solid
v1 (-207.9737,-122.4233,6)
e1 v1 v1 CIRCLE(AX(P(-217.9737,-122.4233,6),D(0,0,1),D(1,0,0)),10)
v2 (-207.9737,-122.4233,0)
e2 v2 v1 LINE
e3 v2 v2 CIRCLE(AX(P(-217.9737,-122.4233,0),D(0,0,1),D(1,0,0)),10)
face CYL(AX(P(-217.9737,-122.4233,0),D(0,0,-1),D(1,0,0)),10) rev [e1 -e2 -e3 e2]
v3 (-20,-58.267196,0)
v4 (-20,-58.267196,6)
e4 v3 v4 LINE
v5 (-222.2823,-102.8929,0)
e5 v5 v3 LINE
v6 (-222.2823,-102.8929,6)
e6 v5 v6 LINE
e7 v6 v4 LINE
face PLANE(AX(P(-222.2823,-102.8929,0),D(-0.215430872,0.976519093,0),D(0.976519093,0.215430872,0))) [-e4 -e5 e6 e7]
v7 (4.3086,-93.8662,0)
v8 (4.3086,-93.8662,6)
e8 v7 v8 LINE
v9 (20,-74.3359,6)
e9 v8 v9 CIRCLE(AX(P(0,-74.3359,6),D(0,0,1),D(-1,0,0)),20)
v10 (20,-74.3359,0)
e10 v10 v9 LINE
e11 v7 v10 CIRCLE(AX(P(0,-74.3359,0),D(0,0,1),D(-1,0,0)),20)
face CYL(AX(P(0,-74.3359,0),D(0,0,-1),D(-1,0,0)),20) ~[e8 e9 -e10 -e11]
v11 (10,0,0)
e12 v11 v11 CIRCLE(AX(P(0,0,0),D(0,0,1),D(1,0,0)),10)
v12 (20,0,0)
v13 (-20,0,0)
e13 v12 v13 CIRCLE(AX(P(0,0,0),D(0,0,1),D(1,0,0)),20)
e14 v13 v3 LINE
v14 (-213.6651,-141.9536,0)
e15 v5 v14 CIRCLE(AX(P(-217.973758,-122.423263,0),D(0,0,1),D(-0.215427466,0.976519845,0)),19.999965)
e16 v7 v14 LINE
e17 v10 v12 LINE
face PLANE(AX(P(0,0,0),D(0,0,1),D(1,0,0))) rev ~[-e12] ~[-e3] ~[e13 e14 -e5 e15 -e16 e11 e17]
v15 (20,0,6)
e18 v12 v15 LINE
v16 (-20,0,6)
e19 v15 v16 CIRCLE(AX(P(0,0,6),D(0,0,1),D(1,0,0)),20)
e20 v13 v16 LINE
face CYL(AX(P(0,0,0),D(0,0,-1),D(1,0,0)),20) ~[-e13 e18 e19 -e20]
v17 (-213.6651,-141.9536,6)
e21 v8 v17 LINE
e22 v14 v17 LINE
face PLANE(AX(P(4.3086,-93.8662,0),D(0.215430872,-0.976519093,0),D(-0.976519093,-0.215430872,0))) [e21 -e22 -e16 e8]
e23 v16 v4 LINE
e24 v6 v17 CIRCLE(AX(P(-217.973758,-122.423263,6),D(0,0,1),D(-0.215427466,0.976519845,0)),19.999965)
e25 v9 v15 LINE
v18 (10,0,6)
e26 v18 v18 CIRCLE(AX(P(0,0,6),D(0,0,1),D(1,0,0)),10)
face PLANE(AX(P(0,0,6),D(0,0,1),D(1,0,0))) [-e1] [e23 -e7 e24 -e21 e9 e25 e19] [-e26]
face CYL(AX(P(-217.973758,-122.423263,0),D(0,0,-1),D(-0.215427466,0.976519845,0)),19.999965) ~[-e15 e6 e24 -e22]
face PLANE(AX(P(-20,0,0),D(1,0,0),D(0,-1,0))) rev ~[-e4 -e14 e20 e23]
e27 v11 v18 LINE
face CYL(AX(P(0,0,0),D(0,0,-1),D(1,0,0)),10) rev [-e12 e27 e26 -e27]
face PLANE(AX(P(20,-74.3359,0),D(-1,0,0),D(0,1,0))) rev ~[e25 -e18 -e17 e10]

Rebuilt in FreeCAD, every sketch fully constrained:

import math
import FreeCAD as App
import Part
import Sketcher

V = App.Vector
Q = App.Units.Quantity

doc = App.newDocument("Part")
body = doc.addObject("PartDesign::Body", "Body")

sketch1 = body.newObject("Sketcher::SketchObject", "Sketch")
sketch1.AttachmentSupport = (doc.getObject("XY_Plane"), [""])
sketch1.MapMode = "FlatFace"
sketch1.addGeometry(Part.ArcOfCircle(Part.Circle(V(0, 0, 0), V(0, 0, 1), 20), math.radians(0), math.radians(180)), False)
sketch1.addGeometry(Part.LineSegment(V(-20, 0, 0), V(-20, -58, 0)), False)
sketch1.addGeometry(Part.LineSegment(V(-20, -58, 0), V(-222, -103, 0)), False)
sketch1.addGeometry(Part.ArcOfCircle(Part.Circle(V(-218, -122, 0), V(0, 0, 1), 20), math.radians(102), math.radians(282)), False)
sketch1.addGeometry(Part.LineSegment(V(-214, -142, 0), V(4, -94, 0)), False)
sketch1.addGeometry(Part.ArcOfCircle(Part.Circle(V(0, -74, 0), V(0, 0, 1), 20), math.radians(-78), math.radians(0)), False)
sketch1.addGeometry(Part.LineSegment(V(20, -74, 0), V(20, 0, 0)), False)
sketch1.addGeometry(Part.Circle(V(0, 0, 0), V(0, 0, 1), 10), False)
sketch1.addGeometry(Part.Circle(V(-218, -122, 0), V(0, 0, 1), 10), False)
sketch1.addConstraint(Sketcher.Constraint("Tangent", 0, 2, 1, 1))
sketch1.addConstraint(Sketcher.Constraint("Coincident", 1, 2, 2, 1))
sketch1.addConstraint(Sketcher.Constraint("Tangent", 2, 2, 3, 1))
sketch1.addConstraint(Sketcher.Constraint("Tangent", 3, 2, 4, 1))
sketch1.addConstraint(Sketcher.Constraint("Tangent", 4, 2, 5, 1))
sketch1.addConstraint(Sketcher.Constraint("Tangent", 5, 2, 6, 1))
sketch1.addConstraint(Sketcher.Constraint("Tangent", 6, 2, 0, 1))
sketch1.addConstraint(Sketcher.Constraint("Vertical", 1))
sketch1.addConstraint(Sketcher.Constraint("Vertical", 6))
sketch1.addConstraint(Sketcher.Constraint("Coincident", 0, 3, -1, 1))
sketch1.addConstraint(Sketcher.Constraint("Coincident", 7, 3, -1, 1))
sketch1.addConstraint(Sketcher.Constraint("Coincident", 8, 3, 3, 3))
sketch1.addConstraint(Sketcher.Constraint("Equal", 0, 3))
sketch1.addConstraint(Sketcher.Constraint("Equal", 3, 5))
sketch1.addConstraint(Sketcher.Constraint("Equal", 7, 8))
sketch1.addConstraint(Sketcher.Constraint("Parallel", 2, 4))
sketch1.addConstraint(Sketcher.Constraint("Diameter", 7, Q("20 mm")))
sketch1.addConstraint(Sketcher.Constraint("Radius", 0, Q("20 mm")))
sketch1.addConstraint(Sketcher.Constraint("Angle", 2, Q("-167.5592 deg")))
sketch1.addConstraint(Sketcher.Constraint("DistanceY", 6, 1, 6, 2, Q("74.336 mm")))
sketch1.addConstraint(Sketcher.Constraint("Distance", 4, Q("223.215 mm")))
pad1 = body.newObject("PartDesign::Pad", "Pad")
pad1.Profile = sketch1
pad1.Length = 6

doc.recompute()
